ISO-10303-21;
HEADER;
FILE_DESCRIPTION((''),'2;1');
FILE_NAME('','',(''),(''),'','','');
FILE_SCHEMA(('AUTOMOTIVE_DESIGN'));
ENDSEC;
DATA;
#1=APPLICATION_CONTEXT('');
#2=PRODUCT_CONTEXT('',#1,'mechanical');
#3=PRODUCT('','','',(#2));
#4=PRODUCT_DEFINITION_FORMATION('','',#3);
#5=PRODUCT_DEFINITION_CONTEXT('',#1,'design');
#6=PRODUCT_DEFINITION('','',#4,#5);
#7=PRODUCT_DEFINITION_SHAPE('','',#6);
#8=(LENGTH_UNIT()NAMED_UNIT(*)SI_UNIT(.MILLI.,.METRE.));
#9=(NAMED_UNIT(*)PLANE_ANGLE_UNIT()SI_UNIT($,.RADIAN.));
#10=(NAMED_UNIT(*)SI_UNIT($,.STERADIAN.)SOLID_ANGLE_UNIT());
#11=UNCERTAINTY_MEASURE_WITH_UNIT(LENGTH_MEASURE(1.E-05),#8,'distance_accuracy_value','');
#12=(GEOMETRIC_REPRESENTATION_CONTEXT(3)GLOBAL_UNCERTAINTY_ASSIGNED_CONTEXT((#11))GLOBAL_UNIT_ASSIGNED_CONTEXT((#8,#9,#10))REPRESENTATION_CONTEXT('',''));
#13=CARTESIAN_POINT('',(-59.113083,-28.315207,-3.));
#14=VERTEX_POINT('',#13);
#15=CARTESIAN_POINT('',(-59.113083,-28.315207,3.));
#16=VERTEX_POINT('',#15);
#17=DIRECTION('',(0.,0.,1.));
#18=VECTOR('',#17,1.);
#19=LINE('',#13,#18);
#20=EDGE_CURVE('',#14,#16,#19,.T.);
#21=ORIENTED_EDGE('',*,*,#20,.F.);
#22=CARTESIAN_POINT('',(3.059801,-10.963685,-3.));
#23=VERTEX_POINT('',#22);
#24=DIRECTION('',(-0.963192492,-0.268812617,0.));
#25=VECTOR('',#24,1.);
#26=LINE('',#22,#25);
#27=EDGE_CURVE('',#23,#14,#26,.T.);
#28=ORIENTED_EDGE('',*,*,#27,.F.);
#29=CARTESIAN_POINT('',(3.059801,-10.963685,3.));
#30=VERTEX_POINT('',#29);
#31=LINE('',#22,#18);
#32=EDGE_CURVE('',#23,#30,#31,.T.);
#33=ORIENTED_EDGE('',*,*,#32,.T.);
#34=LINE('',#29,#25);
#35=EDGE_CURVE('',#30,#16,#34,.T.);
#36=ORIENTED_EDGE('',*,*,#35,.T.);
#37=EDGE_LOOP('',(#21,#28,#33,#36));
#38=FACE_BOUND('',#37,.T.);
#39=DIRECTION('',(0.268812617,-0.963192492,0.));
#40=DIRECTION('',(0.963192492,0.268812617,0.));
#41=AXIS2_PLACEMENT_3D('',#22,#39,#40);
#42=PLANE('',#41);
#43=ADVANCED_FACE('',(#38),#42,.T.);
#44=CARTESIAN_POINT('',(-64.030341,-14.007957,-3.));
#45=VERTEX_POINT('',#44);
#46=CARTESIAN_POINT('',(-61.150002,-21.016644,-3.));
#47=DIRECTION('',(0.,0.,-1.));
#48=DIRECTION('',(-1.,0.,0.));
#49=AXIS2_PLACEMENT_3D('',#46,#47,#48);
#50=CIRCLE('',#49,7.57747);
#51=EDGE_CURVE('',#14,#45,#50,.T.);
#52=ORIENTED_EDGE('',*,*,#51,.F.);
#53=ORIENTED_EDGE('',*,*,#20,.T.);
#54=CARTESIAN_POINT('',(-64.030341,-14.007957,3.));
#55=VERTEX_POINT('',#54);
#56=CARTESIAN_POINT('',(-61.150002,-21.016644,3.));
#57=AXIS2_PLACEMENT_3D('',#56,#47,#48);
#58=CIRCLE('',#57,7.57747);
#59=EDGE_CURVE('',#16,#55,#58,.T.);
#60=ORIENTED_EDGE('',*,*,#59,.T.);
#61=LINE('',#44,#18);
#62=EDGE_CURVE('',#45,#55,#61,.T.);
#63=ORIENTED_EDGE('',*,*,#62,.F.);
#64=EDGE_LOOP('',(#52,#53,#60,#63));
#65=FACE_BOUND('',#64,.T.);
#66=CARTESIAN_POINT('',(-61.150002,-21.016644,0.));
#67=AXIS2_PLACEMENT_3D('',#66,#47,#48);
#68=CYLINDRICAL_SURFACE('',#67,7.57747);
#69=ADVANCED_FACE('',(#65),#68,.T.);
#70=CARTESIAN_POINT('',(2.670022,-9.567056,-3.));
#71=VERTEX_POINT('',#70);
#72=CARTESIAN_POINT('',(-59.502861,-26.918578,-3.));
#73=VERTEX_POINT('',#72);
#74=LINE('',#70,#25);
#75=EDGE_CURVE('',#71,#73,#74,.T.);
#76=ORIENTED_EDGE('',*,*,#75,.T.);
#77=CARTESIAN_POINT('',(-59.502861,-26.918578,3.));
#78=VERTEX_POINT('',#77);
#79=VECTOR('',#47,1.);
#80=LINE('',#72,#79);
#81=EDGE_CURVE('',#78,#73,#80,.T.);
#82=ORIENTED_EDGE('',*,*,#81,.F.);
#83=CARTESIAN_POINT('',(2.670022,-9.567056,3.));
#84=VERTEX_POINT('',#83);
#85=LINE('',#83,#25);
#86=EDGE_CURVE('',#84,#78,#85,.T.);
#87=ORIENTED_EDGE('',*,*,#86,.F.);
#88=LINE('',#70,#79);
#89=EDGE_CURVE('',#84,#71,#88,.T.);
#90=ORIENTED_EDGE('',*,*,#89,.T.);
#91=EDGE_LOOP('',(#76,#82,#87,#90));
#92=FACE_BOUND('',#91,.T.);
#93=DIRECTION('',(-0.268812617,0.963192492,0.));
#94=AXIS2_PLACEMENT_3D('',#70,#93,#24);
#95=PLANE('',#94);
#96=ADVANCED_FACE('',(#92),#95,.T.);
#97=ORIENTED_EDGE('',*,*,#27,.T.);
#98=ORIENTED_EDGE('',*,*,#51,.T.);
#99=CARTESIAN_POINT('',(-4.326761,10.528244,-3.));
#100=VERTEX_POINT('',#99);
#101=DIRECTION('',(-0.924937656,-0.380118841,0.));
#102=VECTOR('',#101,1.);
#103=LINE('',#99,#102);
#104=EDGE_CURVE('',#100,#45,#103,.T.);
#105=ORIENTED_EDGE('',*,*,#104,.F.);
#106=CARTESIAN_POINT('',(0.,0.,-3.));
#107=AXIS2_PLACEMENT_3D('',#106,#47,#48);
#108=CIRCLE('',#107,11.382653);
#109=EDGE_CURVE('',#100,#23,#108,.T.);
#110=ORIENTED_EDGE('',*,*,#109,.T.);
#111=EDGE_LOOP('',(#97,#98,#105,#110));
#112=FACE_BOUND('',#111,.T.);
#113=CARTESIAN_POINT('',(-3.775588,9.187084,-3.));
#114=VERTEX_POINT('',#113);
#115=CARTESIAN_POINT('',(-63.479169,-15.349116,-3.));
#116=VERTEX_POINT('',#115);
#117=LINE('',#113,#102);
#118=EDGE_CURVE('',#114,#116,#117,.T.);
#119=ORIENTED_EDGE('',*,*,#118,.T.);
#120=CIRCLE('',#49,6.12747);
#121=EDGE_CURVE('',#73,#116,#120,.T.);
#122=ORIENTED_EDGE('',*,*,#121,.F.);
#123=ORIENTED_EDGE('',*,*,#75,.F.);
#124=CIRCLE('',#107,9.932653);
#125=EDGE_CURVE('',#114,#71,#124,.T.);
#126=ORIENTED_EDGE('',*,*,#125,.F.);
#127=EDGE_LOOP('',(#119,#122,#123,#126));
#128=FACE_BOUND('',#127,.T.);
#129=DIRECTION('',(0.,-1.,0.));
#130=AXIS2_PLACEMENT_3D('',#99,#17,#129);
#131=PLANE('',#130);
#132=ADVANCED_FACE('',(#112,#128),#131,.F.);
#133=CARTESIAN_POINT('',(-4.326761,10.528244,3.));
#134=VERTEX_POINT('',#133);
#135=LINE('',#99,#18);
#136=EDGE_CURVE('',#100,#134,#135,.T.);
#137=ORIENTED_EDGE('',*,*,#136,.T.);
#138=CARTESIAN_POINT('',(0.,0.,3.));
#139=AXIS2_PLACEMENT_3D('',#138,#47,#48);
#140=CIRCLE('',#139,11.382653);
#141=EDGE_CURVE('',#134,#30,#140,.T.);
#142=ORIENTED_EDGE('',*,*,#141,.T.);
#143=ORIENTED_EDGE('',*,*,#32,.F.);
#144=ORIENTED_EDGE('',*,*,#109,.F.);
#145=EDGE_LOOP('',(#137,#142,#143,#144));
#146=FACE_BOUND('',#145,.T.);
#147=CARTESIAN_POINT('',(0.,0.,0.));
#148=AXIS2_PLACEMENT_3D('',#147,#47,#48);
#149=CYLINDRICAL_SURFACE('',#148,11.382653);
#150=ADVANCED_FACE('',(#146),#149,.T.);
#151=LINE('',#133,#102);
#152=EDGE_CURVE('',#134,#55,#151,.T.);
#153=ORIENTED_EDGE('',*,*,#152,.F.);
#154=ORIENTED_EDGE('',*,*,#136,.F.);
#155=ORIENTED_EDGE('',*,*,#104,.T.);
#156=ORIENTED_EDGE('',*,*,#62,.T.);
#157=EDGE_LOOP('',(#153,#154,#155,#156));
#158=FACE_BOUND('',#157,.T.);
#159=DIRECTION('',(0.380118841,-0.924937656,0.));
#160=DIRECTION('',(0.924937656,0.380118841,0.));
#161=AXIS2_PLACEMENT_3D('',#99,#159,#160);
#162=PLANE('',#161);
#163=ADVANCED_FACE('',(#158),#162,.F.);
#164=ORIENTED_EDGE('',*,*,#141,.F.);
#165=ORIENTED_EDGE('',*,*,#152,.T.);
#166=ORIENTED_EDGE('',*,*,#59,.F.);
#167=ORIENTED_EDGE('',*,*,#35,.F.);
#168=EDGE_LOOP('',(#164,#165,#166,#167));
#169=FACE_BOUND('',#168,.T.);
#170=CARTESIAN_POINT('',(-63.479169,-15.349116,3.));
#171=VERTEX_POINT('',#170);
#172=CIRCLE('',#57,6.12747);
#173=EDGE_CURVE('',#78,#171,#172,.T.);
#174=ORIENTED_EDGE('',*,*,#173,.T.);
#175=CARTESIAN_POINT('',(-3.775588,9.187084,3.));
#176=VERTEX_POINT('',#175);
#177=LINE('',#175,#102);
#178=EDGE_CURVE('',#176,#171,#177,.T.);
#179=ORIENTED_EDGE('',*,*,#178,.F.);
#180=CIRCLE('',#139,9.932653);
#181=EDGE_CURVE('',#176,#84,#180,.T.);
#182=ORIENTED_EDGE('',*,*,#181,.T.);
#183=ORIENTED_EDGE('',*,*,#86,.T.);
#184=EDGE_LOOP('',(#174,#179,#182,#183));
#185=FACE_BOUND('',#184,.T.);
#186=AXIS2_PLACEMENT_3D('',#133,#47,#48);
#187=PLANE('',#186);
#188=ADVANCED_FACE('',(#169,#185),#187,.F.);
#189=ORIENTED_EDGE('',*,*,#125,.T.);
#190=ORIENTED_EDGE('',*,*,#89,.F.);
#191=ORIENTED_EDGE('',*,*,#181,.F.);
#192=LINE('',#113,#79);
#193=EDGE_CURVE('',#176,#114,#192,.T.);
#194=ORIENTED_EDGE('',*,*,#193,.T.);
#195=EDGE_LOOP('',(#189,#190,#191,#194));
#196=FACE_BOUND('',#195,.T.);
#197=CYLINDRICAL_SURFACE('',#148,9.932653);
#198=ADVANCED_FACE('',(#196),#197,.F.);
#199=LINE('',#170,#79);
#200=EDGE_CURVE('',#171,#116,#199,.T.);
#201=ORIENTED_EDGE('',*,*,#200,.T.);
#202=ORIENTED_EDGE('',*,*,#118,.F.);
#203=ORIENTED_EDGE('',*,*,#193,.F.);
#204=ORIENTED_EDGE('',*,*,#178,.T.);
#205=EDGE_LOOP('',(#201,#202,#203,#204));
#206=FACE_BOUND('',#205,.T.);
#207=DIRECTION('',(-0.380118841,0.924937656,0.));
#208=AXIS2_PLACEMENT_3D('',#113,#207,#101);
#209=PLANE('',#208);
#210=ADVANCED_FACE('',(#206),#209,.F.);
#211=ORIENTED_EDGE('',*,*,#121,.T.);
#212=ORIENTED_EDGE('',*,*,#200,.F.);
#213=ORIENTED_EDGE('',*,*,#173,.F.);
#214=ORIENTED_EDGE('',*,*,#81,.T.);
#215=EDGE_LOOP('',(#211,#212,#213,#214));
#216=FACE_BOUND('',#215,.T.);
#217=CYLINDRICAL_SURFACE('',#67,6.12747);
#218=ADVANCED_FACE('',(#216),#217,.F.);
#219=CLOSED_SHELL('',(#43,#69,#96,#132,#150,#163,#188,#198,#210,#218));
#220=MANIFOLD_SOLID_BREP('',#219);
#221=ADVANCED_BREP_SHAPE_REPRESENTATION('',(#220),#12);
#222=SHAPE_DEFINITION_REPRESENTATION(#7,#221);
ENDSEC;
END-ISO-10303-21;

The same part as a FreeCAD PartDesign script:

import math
import FreeCAD as App
import Part
import Sketcher
Q = App.Units.Quantity


def add_polygon(sketch, points):
    """Adds a closed chain of lines whose ends are joined by coincident constraints."""
    first, n = sketch.GeometryCount, len(points)
    for a, b in zip(points, points[1:] + points[:1]):
        sketch.addGeometry(Part.LineSegment(App.Vector(*a, 0), App.Vector(*b, 0)), False)
    for i in range(n):
        sketch.addConstraint(Sketcher.Constraint("Coincident", first + i, 2, first + (i + 1) % n, 1))

doc = App.newDocument("Part")
body = doc.addObject("PartDesign::Body", "Body")

sketch1 = doc.addObject("Sketcher::SketchObject", "Sketch")
body.addObject(sketch1)
sketch1.Placement = App.Placement(App.Vector(-63.479169, -15.349116, 0), App.Rotation(App.Vector(0, 0, -1), App.Vector(-0.380118841, 0.924937656, 0), App.Vector(0.924937656, 0.380118841, 0), "ZXY"))
add_polygon(sketch1, [(-3, 1.45), (-3, 0), (3, 0), (3, 1.45)])
sketch1.addConstraint(Sketcher.Constraint("Vertical", 0))
sketch1.addConstraint(Sketcher.Constraint("Horizontal", 1))
sketch1.addConstraint(Sketcher.Constraint("Vertical", 2))
sketch1.addConstraint(Sketcher.Constraint("Horizontal", 3))
sketch1.addConstraint(Sketcher.Constraint("Symmetric", 0, 2, 1, 2, -1, 1))
sketch1.addConstraint(Sketcher.Constraint("DistanceX", 1, 1, 1, 2, Q("6 mm")))
sketch1.addConstraint(Sketcher.Constraint("DistanceY", 0, 2, 0, 1, Q("1.45 mm")))

sketch2 = doc.addObject("Sketcher::SketchObject", "Sketch001")
body.addObject(sketch2)
sketch2.AttachmentSupport = (doc.XY_Plane, [""])
sketch2.MapMode = "FlatFace"
sketch2.addGeometry(Part.LineSegment(App.Vector(-63.479169, -15.349116, 0), App.Vector(-3.775588, 9.187084, 0)), False)
sketch2.addGeometry(Part.ArcOfCircle(Part.Circle(App.Vector(0, 0, 0), App.Vector(0, 0, 1), 9.932653), math.radians(-74.406377), math.radians(112.341044)), False)
sketch2.addGeometry(Part.LineSegment(App.Vector(2.670022, -9.567056, 0), App.Vector(-59.502861, -26.918578, 0)), False)
sketch2.addGeometry(Part.ArcOfCircle(Part.Circle(App.Vector(-61.150002, -21.016644, 0), App.Vector(0, 0, 1), 6.12747), math.radians(112.341044), math.radians(285.593623)), False)
sketch2.addConstraint(Sketcher.Constraint("Tangent", 0, 2, 1, 2))
sketch2.addConstraint(Sketcher.Constraint("Tangent", 1, 1, 2, 1))
sketch2.addConstraint(Sketcher.Constraint("Tangent", 2, 2, 3, 2))
sketch2.addConstraint(Sketcher.Constraint("Tangent", 3, 1, 0, 1))
sketch2.addConstraint(Sketcher.Constraint("Coincident", 1, 3, -1, 1))
sketch2.addConstraint(Sketcher.Constraint("Radius", 3, Q("6.12747 mm")))
sketch2.addConstraint(Sketcher.Constraint("Radius", 1, Q("9.932653 mm")))
sketch2.addConstraint(Sketcher.Constraint("DistanceY", 3, 1, 0, 2, Q("24.536201 mm")))
sketch2.addConstraint(Sketcher.Constraint("DistanceX", 0, 2, -1, 1, Q("3.775588 mm")))
doc.recompute()

additivepipe = doc.addObject("PartDesign::AdditivePipe", "AdditivePipe")
body.addObject(additivepipe)
additivepipe.Profile = sketch1
additivepipe.Spine = (sketch2, ["Edge1", "Edge2", "Edge3", "Edge4"])

doc.recompute()
